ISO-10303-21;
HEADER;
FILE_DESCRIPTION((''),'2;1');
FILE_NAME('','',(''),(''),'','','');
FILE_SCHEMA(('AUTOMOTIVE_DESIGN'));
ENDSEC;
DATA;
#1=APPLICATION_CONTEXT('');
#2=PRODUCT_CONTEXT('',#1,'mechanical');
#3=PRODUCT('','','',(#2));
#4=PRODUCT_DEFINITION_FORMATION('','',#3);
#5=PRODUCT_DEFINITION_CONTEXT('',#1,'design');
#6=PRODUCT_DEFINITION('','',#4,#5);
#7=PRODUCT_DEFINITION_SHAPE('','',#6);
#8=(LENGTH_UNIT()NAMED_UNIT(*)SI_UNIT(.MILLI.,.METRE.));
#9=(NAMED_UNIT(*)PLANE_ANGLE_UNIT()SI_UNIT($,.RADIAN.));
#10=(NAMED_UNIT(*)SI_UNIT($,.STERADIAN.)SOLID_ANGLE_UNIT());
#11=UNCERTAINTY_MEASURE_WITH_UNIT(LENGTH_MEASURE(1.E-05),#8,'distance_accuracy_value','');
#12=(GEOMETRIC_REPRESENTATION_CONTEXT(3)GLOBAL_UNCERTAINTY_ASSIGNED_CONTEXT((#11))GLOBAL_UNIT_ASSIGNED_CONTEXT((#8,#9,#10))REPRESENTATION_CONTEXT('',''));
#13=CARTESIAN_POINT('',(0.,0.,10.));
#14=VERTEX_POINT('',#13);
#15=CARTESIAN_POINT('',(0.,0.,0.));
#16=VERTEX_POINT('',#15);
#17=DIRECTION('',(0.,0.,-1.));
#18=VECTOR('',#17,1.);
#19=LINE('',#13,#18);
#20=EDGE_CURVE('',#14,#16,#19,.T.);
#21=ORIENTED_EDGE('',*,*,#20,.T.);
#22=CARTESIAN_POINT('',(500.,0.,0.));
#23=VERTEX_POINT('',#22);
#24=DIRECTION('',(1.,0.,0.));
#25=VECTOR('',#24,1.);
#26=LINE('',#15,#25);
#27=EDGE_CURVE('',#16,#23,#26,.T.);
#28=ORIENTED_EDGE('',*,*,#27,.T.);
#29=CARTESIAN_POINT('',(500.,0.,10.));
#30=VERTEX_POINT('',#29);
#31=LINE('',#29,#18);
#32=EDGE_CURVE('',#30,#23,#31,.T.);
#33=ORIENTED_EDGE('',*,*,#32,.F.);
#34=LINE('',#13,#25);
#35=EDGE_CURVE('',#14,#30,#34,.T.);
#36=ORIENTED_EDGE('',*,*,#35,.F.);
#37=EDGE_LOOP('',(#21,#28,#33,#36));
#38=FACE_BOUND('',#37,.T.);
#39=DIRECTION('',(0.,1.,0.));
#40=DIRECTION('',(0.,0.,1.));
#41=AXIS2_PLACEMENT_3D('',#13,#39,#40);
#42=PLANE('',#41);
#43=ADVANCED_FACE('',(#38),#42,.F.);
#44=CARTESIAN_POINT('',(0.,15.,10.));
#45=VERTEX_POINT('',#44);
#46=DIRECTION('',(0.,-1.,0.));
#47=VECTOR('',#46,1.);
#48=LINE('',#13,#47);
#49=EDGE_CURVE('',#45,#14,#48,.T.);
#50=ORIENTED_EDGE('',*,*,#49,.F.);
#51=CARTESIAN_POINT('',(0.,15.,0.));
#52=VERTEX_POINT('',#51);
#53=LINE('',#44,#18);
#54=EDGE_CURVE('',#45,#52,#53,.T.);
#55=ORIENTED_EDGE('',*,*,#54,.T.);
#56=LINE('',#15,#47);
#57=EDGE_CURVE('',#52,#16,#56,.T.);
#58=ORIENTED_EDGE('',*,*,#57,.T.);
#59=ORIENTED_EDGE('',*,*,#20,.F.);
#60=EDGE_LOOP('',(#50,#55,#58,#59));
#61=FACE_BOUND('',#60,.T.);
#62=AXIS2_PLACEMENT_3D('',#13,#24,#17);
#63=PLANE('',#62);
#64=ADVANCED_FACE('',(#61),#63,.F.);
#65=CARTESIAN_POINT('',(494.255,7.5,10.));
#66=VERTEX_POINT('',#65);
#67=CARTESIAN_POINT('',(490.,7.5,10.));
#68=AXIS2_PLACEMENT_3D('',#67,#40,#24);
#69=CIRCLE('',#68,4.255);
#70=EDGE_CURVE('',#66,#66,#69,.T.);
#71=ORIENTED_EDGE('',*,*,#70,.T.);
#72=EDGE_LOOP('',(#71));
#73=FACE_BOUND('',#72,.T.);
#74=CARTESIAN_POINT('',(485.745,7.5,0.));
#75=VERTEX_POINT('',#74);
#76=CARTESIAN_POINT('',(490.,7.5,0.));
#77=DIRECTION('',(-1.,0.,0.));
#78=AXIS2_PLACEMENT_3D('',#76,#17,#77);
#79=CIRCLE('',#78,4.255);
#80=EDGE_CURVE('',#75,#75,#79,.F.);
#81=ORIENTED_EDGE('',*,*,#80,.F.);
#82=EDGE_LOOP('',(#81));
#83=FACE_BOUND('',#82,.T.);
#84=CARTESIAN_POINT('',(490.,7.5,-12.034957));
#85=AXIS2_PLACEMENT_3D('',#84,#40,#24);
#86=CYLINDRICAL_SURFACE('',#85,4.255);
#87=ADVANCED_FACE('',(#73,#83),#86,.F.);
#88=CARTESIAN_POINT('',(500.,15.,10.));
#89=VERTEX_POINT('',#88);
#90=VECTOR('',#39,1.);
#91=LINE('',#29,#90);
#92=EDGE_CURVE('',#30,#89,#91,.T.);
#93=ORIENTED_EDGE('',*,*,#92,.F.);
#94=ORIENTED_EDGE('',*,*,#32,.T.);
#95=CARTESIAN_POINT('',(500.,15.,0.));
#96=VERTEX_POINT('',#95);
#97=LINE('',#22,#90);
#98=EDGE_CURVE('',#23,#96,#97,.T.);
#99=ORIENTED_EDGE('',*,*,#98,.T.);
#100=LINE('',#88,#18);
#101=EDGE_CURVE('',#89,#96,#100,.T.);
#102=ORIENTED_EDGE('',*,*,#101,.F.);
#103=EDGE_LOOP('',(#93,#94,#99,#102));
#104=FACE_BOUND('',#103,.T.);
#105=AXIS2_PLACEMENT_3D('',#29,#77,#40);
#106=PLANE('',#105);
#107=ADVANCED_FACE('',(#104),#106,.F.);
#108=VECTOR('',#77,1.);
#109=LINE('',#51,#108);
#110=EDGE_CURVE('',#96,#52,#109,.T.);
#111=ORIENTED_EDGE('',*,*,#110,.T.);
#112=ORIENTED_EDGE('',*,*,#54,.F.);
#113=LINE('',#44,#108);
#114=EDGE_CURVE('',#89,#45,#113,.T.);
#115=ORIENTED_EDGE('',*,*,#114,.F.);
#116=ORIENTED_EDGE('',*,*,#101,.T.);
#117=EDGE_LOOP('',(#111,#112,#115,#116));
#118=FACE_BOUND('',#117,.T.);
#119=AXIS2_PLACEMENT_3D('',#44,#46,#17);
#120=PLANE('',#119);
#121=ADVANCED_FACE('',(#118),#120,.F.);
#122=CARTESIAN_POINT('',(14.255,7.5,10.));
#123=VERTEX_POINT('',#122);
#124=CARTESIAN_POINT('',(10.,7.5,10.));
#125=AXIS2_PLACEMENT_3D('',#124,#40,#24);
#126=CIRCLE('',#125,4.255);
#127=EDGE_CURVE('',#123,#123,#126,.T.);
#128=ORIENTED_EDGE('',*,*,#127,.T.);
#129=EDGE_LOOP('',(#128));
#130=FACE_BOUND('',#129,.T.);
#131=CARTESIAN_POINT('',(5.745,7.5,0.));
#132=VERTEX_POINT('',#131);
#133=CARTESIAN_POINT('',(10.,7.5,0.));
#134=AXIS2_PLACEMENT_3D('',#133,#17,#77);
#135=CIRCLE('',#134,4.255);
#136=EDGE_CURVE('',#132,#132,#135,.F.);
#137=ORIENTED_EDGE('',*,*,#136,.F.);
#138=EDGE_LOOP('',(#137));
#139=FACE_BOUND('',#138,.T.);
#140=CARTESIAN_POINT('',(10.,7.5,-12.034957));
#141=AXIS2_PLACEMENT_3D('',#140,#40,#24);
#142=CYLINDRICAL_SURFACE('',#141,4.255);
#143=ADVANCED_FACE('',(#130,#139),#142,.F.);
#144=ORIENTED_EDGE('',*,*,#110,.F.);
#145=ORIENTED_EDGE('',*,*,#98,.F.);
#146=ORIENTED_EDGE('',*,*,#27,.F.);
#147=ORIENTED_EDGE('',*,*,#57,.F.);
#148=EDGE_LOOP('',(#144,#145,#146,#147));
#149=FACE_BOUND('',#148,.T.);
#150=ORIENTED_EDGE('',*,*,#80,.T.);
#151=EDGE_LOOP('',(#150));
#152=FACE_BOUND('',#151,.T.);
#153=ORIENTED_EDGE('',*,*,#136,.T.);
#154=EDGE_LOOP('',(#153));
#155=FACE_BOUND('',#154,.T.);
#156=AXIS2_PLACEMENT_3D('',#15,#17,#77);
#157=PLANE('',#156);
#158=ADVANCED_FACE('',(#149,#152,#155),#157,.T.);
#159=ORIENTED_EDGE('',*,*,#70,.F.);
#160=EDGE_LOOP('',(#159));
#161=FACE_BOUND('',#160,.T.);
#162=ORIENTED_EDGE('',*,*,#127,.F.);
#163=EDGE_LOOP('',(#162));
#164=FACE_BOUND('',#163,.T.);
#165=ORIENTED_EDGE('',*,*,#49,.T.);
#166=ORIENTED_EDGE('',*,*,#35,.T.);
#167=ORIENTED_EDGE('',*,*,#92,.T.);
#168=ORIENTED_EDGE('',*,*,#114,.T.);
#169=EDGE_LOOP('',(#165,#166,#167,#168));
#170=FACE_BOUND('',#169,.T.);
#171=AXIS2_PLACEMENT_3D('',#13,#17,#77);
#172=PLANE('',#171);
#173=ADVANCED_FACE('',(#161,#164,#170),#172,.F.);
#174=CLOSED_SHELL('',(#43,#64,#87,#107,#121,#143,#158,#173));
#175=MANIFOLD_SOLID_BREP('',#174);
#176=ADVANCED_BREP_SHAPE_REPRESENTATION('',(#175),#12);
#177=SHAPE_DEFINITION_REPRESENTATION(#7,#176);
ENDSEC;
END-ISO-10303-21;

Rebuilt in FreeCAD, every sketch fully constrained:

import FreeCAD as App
import Part
import Sketcher

V = App.Vector
Q = App.Units.Quantity

doc = App.newDocument("Part")
body = doc.addObject("PartDesign::Body", "Body")

# Sketch on XY plane
sketch1 = doc.addObject("Sketcher::SketchObject", "Sketch")
body.addObject(sketch1)
sketch1.AttachmentSupport = (doc.XY_Plane, [""])
sketch1.MapMode = "FlatFace"
sketch1.addGeometry(Part.LineSegment(V(0, 15, 0), V(0, 0, 0)), False)
sketch1.addGeometry(Part.LineSegment(V(0, 0, 0), V(500, 0, 0)), False)
sketch1.addGeometry(Part.LineSegment(V(500, 0, 0), V(500, 15, 0)), False)
sketch1.addGeometry(Part.LineSegment(V(500, 15, 0), V(0, 15, 0)), False)
sketch1.addConstraint(Sketcher.Constraint("Coincident", 0, 2, 1, 1))
sketch1.addConstraint(Sketcher.Constraint("Coincident", 1, 2, 2, 1))
sketch1.addConstraint(Sketcher.Constraint("Coincident", 2, 2, 3, 1))
sketch1.addConstraint(Sketcher.Constraint("Coincident", 3, 2, 0, 1))
sketch1.addConstraint(Sketcher.Constraint("Vertical", 0))
sketch1.addConstraint(Sketcher.Constraint("Horizontal", 1))
sketch1.addConstraint(Sketcher.Constraint("Vertical", 2))
sketch1.addConstraint(Sketcher.Constraint("Horizontal", 3))
sketch1.addConstraint(Sketcher.Constraint("Coincident", 0, 2, -1, 1))
sketch1.addConstraint(Sketcher.Constraint("DistanceX", 1, 1, 1, 2, Q("500 mm")))
sketch1.addConstraint(Sketcher.Constraint("DistanceY", 0, 2, 0, 1, Q("15 mm")))
pad1 = doc.addObject("PartDesign::Pad", "Pad")
body.addObject(pad1)
pad1.Profile = sketch1
pad1.Length = 10

# Sketch on XY plane
sketch2 = doc.addObject("Sketcher::SketchObject", "Sketch001")
body.addObject(sketch2)
sketch2.AttachmentSupport = (doc.XY_Plane, [""])
sketch2.MapMode = "FlatFace"
sketch2.AttachmentOffset = App.Placement(V(0, 0, 10), App.Rotation())
sketch2.addGeometry(Part.Circle(V(10, 7.5, 0), V(0, 0, 1), 4.3), False)
sketch2.addGeometry(Part.Circle(V(490, 7.5, 0), V(0, 0, 1), 4.3), False)
sketch2.addConstraint(Sketcher.Constraint("Equal", 0, 1))
sketch2.addConstraint(Sketcher.Constraint("Horizontal", 0, 3, 1, 3))
sketch2.addConstraint(Sketcher.Constraint("Diameter", 0, Q("8.51 mm")))
sketch2.addConstraint(Sketcher.Constraint("DistanceX", -1, 1, 0, 3, Q("10 mm")))
sketch2.addConstraint(Sketcher.Constraint("DistanceX", -1, 1, 1, 3, Q("490 mm")))
sketch2.addConstraint(Sketcher.Constraint("DistanceY", -1, 1, 0, 3, Q("7.5 mm")))
pocket1 = doc.addObject("PartDesign::Pocket", "Pocket")
body.addObject(pocket1)
pocket1.Profile = sketch2
pocket1.Length = 10

doc.recompute()
